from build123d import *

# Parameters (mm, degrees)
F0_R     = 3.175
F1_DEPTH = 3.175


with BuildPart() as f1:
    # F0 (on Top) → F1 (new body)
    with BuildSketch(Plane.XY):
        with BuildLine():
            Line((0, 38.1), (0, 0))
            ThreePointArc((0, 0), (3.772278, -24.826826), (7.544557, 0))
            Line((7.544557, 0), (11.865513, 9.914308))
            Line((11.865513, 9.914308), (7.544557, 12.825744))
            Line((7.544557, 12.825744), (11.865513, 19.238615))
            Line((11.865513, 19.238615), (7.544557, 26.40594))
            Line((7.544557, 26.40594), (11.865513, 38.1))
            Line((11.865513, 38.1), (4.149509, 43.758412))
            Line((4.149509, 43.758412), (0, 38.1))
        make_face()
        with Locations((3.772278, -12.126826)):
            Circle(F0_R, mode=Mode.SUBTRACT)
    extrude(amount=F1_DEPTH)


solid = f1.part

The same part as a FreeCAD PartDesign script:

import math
import FreeCAD as App
import Part
import Sketcher
Q = App.Units.Quantity

doc = App.newDocument("Part")
body = doc.addObject("PartDesign::Body", "Body")

sketch1 = body.newObject("Sketcher::SketchObject", "Sketch")
sketch1.AttachmentSupport = (doc.getObject("XY_Plane"), [""])
sketch1.MapMode = "FlatFace"
sketch1.addGeometry([
    Part.LineSegment(App.Vector(0, 38.1, 0), App.Vector(0, 0, 0)),
    Part.ArcOfCircle(Part.Circle(App.Vector(3.8, -12.1, 0), App.Vector(0, 0, 1), 12.7), math.radians(107), math.radians(433)),
    Part.LineSegment(App.Vector(7.5, 0, 0), App.Vector(11.9, 9.9, 0)),
    Part.LineSegment(App.Vector(11.9, 9.9, 0), App.Vector(7.5, 12.8, 0)),
    Part.LineSegment(App.Vector(7.5, 12.8, 0), App.Vector(11.9, 19.2, 0)),
    Part.LineSegment(App.Vector(11.9, 19.2, 0), App.Vector(7.5, 26.4, 0)),
    Part.LineSegment(App.Vector(7.5, 26.4, 0), App.Vector(11.9, 38.1, 0)),
    Part.LineSegment(App.Vector(11.9, 38.1, 0), App.Vector(4.1, 43.8, 0)),
    Part.LineSegment(App.Vector(4.1, 43.8, 0), App.Vector(0, 38.1, 0)),
    Part.Circle(App.Vector(3.8, -12.1, 0), App.Vector(0, 0, 1), 3.2),
], False)
sketch1.addConstraint([
    Sketcher.Constraint("Coincident", 0, 2, 1, 1),
    Sketcher.Constraint("Coincident", 1, 2, 2, 1),
    Sketcher.Constraint("Coincident", 2, 2, 3, 1),
    Sketcher.Constraint("Coincident", 3, 2, 4, 1),
    Sketcher.Constraint("Coincident", 4, 2, 5, 1),
    Sketcher.Constraint("Coincident", 5, 2, 6, 1),
    Sketcher.Constraint("Coincident", 6, 2, 7, 1),
    Sketcher.Constraint("Coincident", 7, 2, 8, 1),
    Sketcher.Constraint("Coincident", 8, 2, 0, 1),
    Sketcher.Constraint("Vertical", 0),
    Sketcher.Constraint("Coincident", 0, 2, -1, 1),
    Sketcher.Constraint("Coincident", 9, 3, 1, 3),
    Sketcher.Constraint("PointOnObject", 1, 2, -1),
    Sketcher.Constraint("Perpendicular", 3, 4),
    Sketcher.Constraint("Perpendicular", 7, 8),
    Sketcher.Constraint("Horizontal", 6, 2, 8, 2),
    Sketcher.Constraint("Vertical", 1, 2, 3, 2),
    Sketcher.Constraint("Vertical", 2, 2, 4, 2),
    Sketcher.Constraint("Vertical", 3, 2, 5, 2),
    Sketcher.Constraint("Vertical", 4, 2, 6, 2),
    Sketcher.Constraint("Radius", 1, Q("0.5 in")),
    Sketcher.Constraint("Diameter", 9, Q("0.25 in")),
    Sketcher.Constraint("DistanceY", 0, 2, 0, 1, Q("1.5 in")),
    Sketcher.Constraint("Distance", 3, Q("5.21029 mm")),
    Sketcher.Constraint("Distance", 4, Q("7.73276 mm")),
    Sketcher.Constraint("Distance", 8, Q("7.016841 mm")),
    Sketcher.Constraint("DistanceX", -1, 1, 1, 3, Q("3.772279 mm")),
    Sketcher.Constraint("DistanceY", -1, 1, 5, 2, Q("26.40594 mm")),
    Sketcher.Constraint("DistanceY", 1, 2, 2, 2, Q("9.914308 mm")),
])
pad1 = body.newObject("PartDesign::Pad", "Pad")
pad1.Profile = sketch1
pad1.Length = Q("0.125 in")

doc.recompute()
